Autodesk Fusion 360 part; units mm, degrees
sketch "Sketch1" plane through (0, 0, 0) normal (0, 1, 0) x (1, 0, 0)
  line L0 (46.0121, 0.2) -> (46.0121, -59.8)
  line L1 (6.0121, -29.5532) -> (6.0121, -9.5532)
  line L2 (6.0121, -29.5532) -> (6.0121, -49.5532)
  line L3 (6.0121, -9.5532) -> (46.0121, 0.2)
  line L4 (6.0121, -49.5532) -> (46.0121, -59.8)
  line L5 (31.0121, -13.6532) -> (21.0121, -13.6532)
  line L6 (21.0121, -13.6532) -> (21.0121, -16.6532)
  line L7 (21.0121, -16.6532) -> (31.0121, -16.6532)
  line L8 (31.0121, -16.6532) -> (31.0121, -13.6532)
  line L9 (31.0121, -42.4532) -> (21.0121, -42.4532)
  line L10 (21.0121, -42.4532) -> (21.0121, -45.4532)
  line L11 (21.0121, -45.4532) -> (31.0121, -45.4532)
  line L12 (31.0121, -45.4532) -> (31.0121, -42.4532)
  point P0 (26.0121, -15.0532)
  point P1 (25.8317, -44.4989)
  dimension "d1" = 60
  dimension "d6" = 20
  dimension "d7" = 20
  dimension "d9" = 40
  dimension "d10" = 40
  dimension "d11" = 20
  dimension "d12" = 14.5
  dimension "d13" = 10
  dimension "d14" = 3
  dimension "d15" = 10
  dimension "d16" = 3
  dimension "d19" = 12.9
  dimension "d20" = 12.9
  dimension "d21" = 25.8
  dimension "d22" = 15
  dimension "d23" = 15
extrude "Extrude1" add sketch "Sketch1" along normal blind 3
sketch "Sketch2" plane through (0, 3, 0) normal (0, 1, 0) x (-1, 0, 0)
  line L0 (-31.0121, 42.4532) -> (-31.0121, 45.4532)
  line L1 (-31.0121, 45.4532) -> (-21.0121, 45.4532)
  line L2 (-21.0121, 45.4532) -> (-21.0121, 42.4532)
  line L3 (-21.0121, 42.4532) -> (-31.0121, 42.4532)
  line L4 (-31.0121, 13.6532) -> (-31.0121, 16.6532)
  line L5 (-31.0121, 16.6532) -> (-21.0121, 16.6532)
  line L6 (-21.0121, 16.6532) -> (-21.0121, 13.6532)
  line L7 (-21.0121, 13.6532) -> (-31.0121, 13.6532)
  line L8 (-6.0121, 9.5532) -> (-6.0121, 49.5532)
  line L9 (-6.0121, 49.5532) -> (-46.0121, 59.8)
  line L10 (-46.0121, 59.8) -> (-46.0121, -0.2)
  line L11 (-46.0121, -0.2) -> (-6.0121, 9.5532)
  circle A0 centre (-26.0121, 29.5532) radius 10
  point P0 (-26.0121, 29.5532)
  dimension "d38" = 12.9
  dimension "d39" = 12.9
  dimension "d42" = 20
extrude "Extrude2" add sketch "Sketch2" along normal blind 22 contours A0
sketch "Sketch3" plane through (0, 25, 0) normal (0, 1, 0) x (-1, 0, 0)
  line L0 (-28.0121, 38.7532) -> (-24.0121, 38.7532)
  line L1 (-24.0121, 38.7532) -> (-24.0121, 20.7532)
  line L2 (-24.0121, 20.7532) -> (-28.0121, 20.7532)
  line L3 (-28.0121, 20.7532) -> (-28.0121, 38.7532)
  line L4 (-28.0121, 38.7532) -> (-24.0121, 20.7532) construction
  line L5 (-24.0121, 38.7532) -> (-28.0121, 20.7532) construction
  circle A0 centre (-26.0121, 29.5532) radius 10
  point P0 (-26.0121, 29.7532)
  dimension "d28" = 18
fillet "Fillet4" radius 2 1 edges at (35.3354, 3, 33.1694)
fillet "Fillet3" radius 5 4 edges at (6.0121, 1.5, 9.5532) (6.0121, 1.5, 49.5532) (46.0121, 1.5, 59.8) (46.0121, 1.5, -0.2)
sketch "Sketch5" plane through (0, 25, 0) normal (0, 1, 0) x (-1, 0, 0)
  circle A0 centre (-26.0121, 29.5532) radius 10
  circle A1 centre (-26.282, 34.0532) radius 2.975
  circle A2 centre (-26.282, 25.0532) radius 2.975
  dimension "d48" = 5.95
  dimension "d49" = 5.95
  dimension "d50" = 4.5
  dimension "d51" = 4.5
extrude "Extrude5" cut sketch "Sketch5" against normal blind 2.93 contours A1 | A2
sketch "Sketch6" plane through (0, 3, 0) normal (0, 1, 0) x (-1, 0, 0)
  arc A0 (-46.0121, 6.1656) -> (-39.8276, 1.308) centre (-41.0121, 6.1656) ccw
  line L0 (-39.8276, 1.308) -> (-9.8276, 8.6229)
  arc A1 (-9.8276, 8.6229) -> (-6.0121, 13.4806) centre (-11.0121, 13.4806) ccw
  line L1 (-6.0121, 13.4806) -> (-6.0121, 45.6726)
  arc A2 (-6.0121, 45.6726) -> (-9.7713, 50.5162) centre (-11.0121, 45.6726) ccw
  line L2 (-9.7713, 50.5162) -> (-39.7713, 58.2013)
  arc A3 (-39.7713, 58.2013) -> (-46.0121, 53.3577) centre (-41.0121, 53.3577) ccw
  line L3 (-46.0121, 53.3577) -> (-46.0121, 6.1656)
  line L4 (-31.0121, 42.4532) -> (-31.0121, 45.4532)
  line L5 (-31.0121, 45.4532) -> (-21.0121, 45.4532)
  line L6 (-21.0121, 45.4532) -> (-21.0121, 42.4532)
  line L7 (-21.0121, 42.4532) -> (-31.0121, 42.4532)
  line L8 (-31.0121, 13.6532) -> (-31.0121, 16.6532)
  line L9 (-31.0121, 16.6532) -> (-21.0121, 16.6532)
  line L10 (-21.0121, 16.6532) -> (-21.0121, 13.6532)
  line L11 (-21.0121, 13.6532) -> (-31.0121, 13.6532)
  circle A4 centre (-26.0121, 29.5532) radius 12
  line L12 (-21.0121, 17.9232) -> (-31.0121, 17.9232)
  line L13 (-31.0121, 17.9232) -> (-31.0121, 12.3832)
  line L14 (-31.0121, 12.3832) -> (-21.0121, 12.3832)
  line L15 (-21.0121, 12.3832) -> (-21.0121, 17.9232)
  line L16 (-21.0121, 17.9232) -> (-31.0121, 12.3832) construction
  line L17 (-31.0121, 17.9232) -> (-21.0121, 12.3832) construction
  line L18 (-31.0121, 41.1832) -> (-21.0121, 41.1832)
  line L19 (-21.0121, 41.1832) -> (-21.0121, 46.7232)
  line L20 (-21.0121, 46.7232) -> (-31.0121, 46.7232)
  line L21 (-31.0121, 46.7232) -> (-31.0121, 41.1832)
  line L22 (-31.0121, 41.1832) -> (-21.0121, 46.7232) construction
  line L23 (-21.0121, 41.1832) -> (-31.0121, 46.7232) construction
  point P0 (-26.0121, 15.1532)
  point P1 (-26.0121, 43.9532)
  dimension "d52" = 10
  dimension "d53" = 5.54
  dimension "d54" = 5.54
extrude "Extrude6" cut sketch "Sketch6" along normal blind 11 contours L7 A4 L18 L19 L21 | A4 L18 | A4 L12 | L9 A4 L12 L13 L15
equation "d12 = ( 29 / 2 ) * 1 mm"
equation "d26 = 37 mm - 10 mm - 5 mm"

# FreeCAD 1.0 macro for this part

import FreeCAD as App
import Part
import Sketcher


def edges_at(feature, points):
    """Names of the edges that pass closest to the given points."""
    edges = feature.Shape.Edges
    near = lambda p: min(range(len(edges)), key=lambda i: edges[i].distToShape(Part.Vertex(*p))[0])
    return sorted({f"Edge{near(p) + 1}" for p in points})


def add_polygon(sketch, points):
    """Adds a closed chain of lines whose ends are joined by coincident constraints."""
    first, n = sketch.GeometryCount, len(points)
    for a, b in zip(points, points[1:] + points[:1]):
        sketch.addGeometry(Part.LineSegment(App.Vector(*a, 0), App.Vector(*b, 0)), False)
    for i in range(n):
        sketch.addConstraint(Sketcher.Constraint("Coincident", first + i, 2, first + (i + 1) % n, 1))

doc = App.newDocument("Part")
body = doc.addObject("PartDesign::Body", "Body")

# Sketch on XZ plane
sketch1 = body.newObject("Sketcher::SketchObject", "Sketch")
sketch1.AttachmentSupport = (doc.getObject("XZ_Plane"), [""])
sketch1.MapMode = "FlatFace"
add_polygon(sketch1, [(46, 59.8), (46, -0.2), (6, 9.6), (6, 49.6)])  # lines 0-3
add_polygon(sketch1, [(21, 42.5), (31, 42.5), (31, 45.5), (21, 45.5)])  # lines 4-7
add_polygon(sketch1, [(21, 13.7), (31, 13.7), (31, 16.7), (21, 16.7)])  # lines 8-11
sketch1.addConstraint([
    Sketcher.Constraint("Vertical", 0),
    Sketcher.Constraint("Vertical", 2),
    Sketcher.Constraint("Horizontal", 4),
    Sketcher.Constraint("Vertical", 5),
    Sketcher.Constraint("Horizontal", 6),
    Sketcher.Constraint("Vertical", 7),
    Sketcher.Constraint("Horizontal", 8),
    Sketcher.Constraint("Vertical", 9),
    Sketcher.Constraint("Horizontal", 10),
    Sketcher.Constraint("Vertical", 11),
    Sketcher.Constraint("Vertical", 5, 2, 8, 2),
    Sketcher.Constraint("Vertical", 7, 2, 10, 2),
    Sketcher.Constraint("Equal", 7, 9),
    Sketcher.Constraint("DistanceX", 4, 1, 4, 2, 10.0),
    Sketcher.Constraint("DistanceY", 0, 2, 0, 1, 60.0),
    Sketcher.Constraint("DistanceY", 2, 1, 2, 2, 40.0),
    Sketcher.Constraint("DistanceY", 5, 1, 5, 2, 3.0),
    Sketcher.Constraint("DistanceX", 1, 2, 0, 2, 40.0),
    Sketcher.Constraint("DistanceX", 4, 2, 3, 2, 15.0),
    Sketcher.Constraint("DistanceY", 9, 2, 4, 2, 25.8),
    Sketcher.Constraint("DistanceY", 0, 2, -1, 1, 0.2),
    Sketcher.Constraint("DistanceY", 4, 2, 2, 2, 7.1),
    Sketcher.Constraint("Distance", 1, 41.172),
    Sketcher.Constraint("DistanceX", -1, 1, 0, 2, 46.012),
])
pad1 = body.newObject("PartDesign::Pad", "Pad")
pad1.Profile = sketch1
pad1.Length = 3
pad1.Reversed = True

# Sketch on XZ plane
sketch2 = body.newObject("Sketcher::SketchObject", "Sketch001")
sketch2.AttachmentSupport = (doc.getObject("XZ_Plane"), [""])
sketch2.MapMode = "FlatFace"
sketch2.AttachmentOffset = App.Placement(App.Vector(0, 0, -3), App.Rotation())
sketch2.addGeometry(Part.Circle(App.Vector(26, 30, 0), App.Vector(0, 0, 1), 10), False)
sketch2.addConstraint([
    Sketcher.Constraint("Diameter", 0, 20.0),
    Sketcher.Constraint("DistanceX", -1, 1, 0, 3, 26.012),
    Sketcher.Constraint("DistanceY", -1, 1, 0, 3, 29.5532),
])
pad2 = body.newObject("PartDesign::Pad", "Pad001")
pad2.Profile = sketch2
pad2.Length = 22
pad2.Reversed = True
doc.recompute()

fillet = body.newObject("PartDesign::Fillet", "Fillet")
fillet.Base = (pad2, edges_at(pad2, [(35.335, 3, 33.169)]))
fillet.Radius = 2
doc.recompute()

fillet2 = body.newObject("PartDesign::Fillet", "Fillet001")
fillet2.Base = (fillet, edges_at(fillet, [
    (6.012, 1.5, 9.553),
    (6.012, 1.5, 49.553),
    (46.012, 1.5, 59.8),
    (46.012, 1.5, -0.2),
]))
fillet2.Radius = 5

# Sketch on XZ plane
sketch3 = body.newObject("Sketcher::SketchObject", "Sketch002")
sketch3.AttachmentSupport = (doc.getObject("XZ_Plane"), [""])
sketch3.MapMode = "FlatFace"
sketch3.AttachmentOffset = App.Placement(App.Vector(0, 0, -25), App.Rotation())
sketch3.addGeometry([
    Part.Circle(App.Vector(26.3, 34.1, 0), App.Vector(0, 0, 1), 3),
    Part.Circle(App.Vector(26.3, 25.1, 0), App.Vector(0, 0, 1), 3),
], False)
sketch3.addConstraint([
    Sketcher.Constraint("Equal", 0, 1),
    Sketcher.Constraint("Vertical", 0, 3, 1, 3),
    Sketcher.Constraint("Diameter", 0, 5.95),
    Sketcher.Constraint("DistanceY", 1, 3, 0, 3, 9.0),
    Sketcher.Constraint("DistanceX", -1, 1, 0, 3, 26.282),
    Sketcher.Constraint("DistanceY", -1, 1, 0, 3, 34.0532),
])
pocket1 = body.newObject("PartDesign::Pocket", "Pocket")
pocket1.Profile = sketch3
pocket1.Length = 2.93
pocket1.Reversed = True

# Sketch on XZ plane
sketch4 = body.newObject("Sketcher::SketchObject", "Sketch003")
sketch4.AttachmentSupport = (doc.getObject("XZ_Plane"), [""])
sketch4.MapMode = "FlatFace"
sketch4.AttachmentOffset = App.Placement(App.Vector(0, 0, -3), App.Rotation())
add_polygon(sketch4, [(21, 42.5), (31, 42.5), (31, 41.2), (21, 41.2)])  # lines 0-3
add_polygon(sketch4, [(31, 17.9), (31, 16.7), (21, 16.7), (21, 17.9)])  # lines 4-7
sketch4.addConstraint([
    Sketcher.Constraint("Horizontal", 0),
    Sketcher.Constraint("Vertical", 1),
    Sketcher.Constraint("Horizontal", 2),
    Sketcher.Constraint("Vertical", 3),
    Sketcher.Constraint("Vertical", 4),
    Sketcher.Constraint("Horizontal", 5),
    Sketcher.Constraint("Vertical", 6),
    Sketcher.Constraint("Horizontal", 7),
    Sketcher.Constraint("Vertical", 1, 2, 4, 2),
    Sketcher.Constraint("Vertical", 3, 2, 5, 2),
    Sketcher.Constraint("Equal", 3, 4),
    Sketcher.Constraint("DistanceX", 0, 1, 0, 2, 10.0),
    Sketcher.Constraint("DistanceY", 1, 2, 1, 1, 1.27),
    Sketcher.Constraint("DistanceY", 4, 2, 0, 2, 25.8),
    Sketcher.Constraint("DistanceX", -1, 1, 0, 2, 31.012),
    Sketcher.Constraint("DistanceY", -1, 1, 0, 2, 42.4532),
])
pocket2 = body.newObject("PartDesign::Pocket", "Pocket001")
pocket2.Profile = sketch4
pocket2.Length = 11

doc.recompute()
